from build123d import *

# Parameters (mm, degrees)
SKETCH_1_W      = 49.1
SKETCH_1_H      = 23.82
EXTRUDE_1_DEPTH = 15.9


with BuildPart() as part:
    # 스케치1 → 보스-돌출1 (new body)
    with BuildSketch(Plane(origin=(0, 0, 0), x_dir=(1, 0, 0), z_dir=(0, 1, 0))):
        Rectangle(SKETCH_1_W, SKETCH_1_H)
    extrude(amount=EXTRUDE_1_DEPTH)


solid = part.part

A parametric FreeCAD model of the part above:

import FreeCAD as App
import Part
import Sketcher

V = App.Vector
Q = App.Units.Quantity

doc = App.newDocument("Part")
body = doc.addObject("PartDesign::Body", "Body")

# Sketch on XZ plane
sketch1 = body.newObject("Sketcher::SketchObject", "Sketch")
sketch1.AttachmentSupport = (doc.getObject("XZ_Plane"), [""])
sketch1.MapMode = "FlatFace"
sketch1.addGeometry([
    Part.LineSegment(V(-24.55, -11.91, 0), V(-24.55, 11.91, 0)),
    Part.LineSegment(V(-24.55, 11.91, 0), V(24.55, 11.91, 0)),
    Part.LineSegment(V(24.55, 11.91, 0), V(24.55, -11.91, 0)),
    Part.LineSegment(V(24.55, -11.91, 0), V(-24.55, -11.91, 0)),
], False)
sketch1.addConstraint([
    Sketcher.Constraint("Coincident", 0, 2, 1, 1),
    Sketcher.Constraint("Coincident", 1, 2, 2, 1),
    Sketcher.Constraint("Coincident", 2, 2, 3, 1),
    Sketcher.Constraint("Coincident", 3, 2, 0, 1),
    Sketcher.Constraint("Vertical", 0),
    Sketcher.Constraint("Horizontal", 1),
    Sketcher.Constraint("Vertical", 2),
    Sketcher.Constraint("Horizontal", 3),
    Sketcher.Constraint("Symmetric", 0, 2, 2, 2, -1, 1),
    Sketcher.Constraint("DistanceX", 1, 1, 1, 2, Q("49.1 mm")),
    Sketcher.Constraint("DistanceY", 0, 1, 0, 2, Q("23.82 mm")),
])
pad1 = body.newObject("PartDesign::Pad", "Pad")
pad1.Profile = sketch1
pad1.Length = 15.9
pad1.Reversed = True

doc.recompute()
